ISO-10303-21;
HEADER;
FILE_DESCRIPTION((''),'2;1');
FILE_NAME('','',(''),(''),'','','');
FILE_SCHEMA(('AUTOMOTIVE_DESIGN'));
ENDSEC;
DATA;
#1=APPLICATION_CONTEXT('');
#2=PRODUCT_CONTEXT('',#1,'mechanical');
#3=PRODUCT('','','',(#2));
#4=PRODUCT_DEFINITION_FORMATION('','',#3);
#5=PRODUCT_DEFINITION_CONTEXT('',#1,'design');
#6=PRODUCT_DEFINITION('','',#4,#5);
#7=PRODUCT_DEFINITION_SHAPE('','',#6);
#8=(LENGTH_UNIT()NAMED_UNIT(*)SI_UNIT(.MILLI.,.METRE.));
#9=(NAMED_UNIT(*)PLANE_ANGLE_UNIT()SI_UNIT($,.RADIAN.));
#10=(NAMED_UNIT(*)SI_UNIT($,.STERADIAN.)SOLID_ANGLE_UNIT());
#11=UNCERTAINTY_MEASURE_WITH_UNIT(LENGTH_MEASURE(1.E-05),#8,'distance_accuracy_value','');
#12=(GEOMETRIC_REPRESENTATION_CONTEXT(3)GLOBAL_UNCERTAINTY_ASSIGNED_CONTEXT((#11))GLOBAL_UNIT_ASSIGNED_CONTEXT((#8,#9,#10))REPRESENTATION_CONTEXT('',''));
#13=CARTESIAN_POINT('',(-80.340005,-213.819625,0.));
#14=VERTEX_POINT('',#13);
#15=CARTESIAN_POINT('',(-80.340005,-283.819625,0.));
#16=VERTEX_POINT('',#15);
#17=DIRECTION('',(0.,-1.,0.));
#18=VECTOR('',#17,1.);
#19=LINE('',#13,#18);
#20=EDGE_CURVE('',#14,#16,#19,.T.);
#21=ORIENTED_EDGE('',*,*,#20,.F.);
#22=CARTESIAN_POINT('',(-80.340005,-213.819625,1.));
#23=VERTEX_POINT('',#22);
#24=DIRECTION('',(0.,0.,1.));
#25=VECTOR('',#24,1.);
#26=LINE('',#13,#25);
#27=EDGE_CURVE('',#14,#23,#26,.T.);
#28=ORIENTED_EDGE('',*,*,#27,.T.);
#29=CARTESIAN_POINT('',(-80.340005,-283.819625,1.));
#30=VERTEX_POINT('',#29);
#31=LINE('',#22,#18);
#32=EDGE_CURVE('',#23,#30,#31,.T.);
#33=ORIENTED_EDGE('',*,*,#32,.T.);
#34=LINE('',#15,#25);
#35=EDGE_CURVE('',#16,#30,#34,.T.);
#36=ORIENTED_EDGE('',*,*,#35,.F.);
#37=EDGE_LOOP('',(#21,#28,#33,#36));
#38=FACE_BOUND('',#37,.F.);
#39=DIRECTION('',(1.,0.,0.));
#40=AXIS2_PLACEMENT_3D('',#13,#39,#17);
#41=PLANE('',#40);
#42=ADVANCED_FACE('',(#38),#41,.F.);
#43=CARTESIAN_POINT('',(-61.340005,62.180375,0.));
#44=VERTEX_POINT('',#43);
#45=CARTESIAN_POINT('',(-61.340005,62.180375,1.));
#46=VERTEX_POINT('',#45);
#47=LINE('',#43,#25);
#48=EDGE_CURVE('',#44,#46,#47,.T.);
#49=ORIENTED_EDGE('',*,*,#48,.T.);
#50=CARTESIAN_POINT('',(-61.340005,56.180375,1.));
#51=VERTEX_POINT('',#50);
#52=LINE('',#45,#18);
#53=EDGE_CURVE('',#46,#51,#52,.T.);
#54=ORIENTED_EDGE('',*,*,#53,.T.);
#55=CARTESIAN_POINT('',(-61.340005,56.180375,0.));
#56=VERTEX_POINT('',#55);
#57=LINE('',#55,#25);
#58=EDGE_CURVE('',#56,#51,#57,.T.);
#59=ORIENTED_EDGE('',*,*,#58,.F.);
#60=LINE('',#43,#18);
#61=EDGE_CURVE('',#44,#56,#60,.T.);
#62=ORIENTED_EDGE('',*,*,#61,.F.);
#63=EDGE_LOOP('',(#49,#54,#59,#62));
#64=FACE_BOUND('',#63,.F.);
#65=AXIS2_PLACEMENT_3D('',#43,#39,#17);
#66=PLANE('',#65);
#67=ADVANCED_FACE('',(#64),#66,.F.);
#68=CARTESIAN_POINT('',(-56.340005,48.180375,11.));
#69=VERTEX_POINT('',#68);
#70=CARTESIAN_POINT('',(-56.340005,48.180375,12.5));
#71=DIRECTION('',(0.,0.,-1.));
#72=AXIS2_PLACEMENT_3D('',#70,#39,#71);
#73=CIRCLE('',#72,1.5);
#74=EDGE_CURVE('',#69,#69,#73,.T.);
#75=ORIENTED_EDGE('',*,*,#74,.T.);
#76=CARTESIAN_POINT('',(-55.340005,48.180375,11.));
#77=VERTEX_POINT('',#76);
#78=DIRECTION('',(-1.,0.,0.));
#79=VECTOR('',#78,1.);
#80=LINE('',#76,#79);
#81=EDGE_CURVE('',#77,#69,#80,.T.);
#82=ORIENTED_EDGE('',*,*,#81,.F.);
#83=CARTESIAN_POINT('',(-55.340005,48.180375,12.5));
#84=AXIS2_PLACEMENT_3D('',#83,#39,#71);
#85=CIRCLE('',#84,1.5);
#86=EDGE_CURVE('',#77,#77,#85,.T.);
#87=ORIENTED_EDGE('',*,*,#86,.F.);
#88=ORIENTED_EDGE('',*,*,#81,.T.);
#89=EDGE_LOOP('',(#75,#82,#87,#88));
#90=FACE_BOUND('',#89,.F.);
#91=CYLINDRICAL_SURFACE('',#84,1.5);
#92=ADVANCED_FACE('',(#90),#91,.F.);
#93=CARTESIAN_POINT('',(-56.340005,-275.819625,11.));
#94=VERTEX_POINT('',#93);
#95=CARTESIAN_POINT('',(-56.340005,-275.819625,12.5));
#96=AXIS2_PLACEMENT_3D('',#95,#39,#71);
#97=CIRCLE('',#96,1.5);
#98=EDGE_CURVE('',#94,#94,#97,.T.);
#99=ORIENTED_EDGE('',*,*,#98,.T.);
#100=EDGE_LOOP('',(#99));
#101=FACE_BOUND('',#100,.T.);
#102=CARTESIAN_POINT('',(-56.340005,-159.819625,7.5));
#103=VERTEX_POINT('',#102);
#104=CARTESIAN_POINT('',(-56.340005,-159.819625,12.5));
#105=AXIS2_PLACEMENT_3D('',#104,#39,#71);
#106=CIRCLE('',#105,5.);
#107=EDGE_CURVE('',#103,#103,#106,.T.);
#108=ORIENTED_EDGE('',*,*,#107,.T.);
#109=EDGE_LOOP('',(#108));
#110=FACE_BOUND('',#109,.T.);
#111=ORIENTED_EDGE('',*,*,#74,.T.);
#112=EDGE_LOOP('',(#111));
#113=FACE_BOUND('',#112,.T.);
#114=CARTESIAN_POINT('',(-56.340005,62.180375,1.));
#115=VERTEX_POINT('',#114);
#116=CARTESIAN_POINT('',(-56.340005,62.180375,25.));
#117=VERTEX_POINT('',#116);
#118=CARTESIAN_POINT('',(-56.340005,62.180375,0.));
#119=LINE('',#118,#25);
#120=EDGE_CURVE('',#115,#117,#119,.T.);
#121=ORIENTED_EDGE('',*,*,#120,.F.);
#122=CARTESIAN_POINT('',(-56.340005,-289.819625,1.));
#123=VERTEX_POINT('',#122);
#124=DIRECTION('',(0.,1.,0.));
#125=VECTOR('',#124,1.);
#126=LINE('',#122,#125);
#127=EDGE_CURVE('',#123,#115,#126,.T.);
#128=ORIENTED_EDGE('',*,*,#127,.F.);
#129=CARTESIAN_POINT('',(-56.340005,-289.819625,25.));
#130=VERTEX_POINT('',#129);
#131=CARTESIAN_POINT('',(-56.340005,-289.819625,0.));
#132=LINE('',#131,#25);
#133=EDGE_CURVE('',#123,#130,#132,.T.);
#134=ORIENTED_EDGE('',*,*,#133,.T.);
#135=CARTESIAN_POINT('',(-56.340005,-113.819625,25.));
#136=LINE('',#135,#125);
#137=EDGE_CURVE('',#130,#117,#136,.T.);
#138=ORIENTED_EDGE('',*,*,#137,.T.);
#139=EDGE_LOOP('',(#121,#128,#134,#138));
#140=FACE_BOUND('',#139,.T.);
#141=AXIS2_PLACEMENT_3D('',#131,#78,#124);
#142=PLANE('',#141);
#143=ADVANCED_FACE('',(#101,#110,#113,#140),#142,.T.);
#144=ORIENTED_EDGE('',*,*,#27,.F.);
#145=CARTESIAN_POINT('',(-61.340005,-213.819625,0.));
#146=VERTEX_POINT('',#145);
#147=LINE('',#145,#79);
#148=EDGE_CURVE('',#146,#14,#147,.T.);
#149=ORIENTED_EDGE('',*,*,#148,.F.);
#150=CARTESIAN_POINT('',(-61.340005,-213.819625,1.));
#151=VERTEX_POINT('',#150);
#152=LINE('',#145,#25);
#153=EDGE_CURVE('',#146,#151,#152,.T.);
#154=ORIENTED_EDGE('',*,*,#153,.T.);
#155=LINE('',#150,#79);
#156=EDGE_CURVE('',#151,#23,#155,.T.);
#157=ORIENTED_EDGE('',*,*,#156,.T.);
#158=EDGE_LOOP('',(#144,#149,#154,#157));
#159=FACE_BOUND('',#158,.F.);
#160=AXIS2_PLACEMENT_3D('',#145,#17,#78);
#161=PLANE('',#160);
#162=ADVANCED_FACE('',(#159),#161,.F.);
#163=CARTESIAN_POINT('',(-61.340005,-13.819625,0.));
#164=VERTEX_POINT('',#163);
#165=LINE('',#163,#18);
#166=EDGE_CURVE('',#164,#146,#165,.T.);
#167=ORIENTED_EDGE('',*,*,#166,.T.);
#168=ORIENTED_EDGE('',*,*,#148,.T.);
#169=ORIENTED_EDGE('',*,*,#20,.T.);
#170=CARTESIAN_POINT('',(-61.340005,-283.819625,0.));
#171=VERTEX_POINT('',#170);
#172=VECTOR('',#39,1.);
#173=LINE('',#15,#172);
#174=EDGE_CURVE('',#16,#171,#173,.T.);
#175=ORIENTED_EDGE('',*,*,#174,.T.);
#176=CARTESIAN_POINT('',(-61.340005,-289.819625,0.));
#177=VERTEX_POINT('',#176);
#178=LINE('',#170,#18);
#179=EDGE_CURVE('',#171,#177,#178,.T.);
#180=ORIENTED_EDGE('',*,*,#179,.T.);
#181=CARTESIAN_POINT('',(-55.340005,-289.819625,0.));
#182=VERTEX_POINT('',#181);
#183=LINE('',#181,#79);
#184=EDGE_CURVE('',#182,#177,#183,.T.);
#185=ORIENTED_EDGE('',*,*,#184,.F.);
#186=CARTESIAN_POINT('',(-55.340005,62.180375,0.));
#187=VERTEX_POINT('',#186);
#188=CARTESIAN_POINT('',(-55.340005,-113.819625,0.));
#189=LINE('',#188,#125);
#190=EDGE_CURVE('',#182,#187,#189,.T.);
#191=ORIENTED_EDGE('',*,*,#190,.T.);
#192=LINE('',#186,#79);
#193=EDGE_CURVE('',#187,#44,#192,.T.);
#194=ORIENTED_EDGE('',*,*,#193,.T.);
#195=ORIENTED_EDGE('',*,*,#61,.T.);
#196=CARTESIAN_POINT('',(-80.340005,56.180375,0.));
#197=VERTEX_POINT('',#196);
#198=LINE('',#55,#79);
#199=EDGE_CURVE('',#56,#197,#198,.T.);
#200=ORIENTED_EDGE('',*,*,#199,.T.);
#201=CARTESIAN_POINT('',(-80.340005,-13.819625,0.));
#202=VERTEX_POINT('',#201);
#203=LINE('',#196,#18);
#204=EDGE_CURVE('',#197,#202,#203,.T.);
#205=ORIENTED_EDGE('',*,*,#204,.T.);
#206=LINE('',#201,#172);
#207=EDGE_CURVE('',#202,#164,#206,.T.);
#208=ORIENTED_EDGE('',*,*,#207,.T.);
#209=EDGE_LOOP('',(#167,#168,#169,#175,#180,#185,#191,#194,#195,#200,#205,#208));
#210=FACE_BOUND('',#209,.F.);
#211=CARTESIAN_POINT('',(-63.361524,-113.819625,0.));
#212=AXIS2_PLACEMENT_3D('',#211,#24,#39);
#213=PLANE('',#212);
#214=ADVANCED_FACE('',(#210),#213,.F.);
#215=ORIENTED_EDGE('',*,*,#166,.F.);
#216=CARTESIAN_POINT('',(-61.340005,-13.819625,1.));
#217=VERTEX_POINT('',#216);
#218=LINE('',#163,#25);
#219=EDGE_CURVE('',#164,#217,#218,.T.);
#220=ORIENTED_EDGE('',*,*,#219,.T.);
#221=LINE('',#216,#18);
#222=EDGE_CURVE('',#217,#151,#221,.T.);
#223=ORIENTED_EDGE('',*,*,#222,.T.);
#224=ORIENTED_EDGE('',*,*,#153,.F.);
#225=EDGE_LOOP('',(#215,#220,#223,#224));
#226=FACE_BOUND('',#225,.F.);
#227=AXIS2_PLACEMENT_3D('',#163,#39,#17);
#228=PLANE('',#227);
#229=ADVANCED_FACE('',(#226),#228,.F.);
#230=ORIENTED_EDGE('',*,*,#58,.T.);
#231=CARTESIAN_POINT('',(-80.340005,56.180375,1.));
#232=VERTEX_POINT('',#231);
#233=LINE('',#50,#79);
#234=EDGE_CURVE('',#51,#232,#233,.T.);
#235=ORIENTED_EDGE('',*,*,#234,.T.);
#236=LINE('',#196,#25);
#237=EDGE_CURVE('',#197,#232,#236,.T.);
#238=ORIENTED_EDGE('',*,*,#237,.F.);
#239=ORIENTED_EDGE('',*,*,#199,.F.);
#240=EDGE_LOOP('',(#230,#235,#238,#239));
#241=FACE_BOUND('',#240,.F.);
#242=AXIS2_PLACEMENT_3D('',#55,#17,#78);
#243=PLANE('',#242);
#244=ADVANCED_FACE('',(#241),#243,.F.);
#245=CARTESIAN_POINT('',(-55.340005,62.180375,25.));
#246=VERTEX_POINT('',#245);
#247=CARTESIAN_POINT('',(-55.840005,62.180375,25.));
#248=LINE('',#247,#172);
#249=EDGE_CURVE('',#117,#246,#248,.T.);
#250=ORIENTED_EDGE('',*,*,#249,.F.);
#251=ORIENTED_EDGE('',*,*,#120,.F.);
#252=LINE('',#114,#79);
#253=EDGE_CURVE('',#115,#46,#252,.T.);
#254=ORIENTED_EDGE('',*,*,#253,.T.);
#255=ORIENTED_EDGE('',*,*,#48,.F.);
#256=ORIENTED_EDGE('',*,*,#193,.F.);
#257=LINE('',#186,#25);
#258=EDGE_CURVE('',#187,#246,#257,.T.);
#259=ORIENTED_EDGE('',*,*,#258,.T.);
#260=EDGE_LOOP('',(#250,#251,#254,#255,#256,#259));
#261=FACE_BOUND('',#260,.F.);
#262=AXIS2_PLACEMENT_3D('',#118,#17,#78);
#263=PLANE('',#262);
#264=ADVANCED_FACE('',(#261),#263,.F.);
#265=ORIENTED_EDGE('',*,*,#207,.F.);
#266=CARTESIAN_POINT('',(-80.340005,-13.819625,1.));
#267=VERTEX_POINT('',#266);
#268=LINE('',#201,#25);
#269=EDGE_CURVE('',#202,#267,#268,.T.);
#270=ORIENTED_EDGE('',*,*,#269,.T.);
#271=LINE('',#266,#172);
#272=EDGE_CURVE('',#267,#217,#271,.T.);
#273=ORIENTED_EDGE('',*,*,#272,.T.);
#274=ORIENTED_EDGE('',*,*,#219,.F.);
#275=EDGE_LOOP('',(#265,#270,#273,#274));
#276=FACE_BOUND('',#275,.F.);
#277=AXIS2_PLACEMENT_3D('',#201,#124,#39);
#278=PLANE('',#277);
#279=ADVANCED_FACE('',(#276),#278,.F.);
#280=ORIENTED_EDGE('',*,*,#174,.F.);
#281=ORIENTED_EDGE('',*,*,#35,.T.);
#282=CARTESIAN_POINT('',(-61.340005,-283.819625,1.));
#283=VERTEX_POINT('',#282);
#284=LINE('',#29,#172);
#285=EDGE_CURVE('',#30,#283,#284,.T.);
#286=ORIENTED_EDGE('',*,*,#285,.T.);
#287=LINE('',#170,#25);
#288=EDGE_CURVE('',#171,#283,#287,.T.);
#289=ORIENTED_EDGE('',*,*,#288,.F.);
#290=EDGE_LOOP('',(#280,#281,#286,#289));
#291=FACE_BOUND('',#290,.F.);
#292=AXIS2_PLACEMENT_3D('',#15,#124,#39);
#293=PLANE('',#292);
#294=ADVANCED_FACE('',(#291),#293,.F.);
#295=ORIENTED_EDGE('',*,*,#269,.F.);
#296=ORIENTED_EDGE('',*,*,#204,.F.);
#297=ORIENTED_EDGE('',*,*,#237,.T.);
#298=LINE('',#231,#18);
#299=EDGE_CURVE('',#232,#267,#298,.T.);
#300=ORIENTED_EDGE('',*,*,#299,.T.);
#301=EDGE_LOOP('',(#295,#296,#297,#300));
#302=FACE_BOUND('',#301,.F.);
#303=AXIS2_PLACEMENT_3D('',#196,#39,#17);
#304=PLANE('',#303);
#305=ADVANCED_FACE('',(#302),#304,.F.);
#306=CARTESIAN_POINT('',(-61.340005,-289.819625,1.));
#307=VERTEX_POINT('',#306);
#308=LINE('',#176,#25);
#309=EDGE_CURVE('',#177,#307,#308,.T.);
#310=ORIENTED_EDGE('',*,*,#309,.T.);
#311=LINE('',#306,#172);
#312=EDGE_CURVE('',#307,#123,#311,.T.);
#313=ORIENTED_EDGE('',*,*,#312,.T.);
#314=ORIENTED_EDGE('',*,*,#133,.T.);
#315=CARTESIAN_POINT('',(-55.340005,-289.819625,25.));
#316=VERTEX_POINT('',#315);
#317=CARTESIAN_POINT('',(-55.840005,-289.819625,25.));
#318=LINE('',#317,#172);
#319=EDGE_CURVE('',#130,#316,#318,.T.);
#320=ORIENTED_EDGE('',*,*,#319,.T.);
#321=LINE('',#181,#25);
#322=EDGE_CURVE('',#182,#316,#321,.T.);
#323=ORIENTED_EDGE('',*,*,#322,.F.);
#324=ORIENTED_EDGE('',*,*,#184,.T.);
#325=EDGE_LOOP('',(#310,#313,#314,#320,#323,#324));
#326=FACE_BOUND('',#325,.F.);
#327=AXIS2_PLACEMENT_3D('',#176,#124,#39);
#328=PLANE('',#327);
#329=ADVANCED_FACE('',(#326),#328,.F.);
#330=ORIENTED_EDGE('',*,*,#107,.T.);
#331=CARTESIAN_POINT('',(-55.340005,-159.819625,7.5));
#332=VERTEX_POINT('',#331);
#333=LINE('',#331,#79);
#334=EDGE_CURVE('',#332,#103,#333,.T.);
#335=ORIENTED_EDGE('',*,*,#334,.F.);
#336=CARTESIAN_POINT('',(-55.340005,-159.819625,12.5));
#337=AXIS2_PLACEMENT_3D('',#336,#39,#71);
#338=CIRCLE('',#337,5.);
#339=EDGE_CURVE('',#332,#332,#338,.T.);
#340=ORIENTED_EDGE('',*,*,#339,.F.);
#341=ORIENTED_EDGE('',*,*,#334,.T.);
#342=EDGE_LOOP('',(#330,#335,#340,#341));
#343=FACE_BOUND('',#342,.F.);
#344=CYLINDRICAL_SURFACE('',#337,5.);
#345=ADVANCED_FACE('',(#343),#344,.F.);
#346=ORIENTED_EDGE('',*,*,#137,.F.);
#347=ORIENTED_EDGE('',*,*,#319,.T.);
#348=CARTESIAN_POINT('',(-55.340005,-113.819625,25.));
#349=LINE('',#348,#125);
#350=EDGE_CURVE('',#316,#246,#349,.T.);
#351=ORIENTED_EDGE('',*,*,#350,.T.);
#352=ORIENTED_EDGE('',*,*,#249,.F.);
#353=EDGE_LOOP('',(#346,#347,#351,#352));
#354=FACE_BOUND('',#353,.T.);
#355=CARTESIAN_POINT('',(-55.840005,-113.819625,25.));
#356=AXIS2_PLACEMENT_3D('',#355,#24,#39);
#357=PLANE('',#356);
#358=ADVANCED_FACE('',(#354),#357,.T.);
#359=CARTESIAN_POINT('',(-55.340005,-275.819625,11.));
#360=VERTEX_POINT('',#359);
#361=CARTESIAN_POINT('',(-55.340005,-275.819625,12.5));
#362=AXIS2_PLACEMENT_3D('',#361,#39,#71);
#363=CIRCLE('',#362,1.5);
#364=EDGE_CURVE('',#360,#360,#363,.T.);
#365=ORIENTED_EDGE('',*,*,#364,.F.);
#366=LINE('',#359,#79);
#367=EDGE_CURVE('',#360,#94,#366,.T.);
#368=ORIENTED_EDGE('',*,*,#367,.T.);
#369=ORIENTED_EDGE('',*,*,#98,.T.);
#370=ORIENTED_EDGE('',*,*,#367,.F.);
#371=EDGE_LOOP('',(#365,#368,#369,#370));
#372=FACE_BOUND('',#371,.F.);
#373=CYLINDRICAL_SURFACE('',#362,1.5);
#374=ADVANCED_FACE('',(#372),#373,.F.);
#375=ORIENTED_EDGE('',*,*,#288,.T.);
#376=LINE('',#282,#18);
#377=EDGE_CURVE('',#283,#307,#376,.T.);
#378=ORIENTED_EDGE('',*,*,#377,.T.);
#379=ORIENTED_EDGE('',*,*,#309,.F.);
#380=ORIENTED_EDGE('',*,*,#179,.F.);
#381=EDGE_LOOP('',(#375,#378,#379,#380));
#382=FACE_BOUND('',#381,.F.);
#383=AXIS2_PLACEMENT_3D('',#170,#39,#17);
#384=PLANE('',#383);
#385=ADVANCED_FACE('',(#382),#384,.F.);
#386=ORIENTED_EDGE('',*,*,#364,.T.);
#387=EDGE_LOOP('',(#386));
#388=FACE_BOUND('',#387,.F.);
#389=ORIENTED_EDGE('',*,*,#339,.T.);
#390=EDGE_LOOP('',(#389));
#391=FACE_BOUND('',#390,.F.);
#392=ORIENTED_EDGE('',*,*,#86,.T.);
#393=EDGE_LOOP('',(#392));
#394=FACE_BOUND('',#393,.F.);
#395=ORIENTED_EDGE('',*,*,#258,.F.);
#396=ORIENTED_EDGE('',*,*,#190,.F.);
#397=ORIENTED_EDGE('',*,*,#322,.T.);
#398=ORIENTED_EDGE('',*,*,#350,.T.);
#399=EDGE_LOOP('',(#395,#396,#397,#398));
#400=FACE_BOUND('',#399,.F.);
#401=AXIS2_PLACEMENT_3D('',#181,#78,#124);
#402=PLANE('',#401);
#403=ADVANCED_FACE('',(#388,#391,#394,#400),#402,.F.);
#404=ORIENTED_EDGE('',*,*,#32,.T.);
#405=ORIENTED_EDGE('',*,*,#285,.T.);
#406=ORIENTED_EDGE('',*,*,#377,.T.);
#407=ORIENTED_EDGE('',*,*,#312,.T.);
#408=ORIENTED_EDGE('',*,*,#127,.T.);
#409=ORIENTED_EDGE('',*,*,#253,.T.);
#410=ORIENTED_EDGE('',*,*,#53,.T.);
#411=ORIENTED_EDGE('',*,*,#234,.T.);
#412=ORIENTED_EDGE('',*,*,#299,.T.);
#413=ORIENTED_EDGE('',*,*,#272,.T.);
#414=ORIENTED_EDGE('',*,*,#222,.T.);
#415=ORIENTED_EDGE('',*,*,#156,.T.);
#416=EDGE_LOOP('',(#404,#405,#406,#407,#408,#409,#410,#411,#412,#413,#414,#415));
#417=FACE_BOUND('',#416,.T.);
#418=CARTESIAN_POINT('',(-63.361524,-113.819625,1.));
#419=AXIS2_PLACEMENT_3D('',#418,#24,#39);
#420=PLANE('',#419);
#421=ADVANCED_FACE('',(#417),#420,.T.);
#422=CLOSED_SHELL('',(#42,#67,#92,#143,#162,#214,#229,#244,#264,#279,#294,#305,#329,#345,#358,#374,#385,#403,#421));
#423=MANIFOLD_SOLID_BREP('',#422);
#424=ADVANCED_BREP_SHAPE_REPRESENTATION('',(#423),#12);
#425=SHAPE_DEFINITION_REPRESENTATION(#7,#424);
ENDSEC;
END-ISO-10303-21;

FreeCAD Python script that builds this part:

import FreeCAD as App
import Part
import Sketcher
from FreeCAD import Vector


def add_polygon(sketch, points):
    """Adds a closed chain of lines whose ends are joined by coincident constraints."""
    first, n = sketch.GeometryCount, len(points)
    for a, b in zip(points, points[1:] + points[:1]):
        sketch.addGeometry(Part.LineSegment(App.Vector(*a, 0), App.Vector(*b, 0)), False)
    for i in range(n):
        sketch.addConstraint(Sketcher.Constraint("Coincident", first + i, 2, first + (i + 1) % n, 1))

doc = App.newDocument("Part")
body = doc.addObject("PartDesign::Body", "Body")

# Sketch on XY plane
sketch1 = doc.addObject("Sketcher::SketchObject", "Sketch")
body.addObject(sketch1)
sketch1.AttachmentSupport = (doc.XY_Plane, [""])
sketch1.MapMode = "FlatFace"
add_polygon(sketch1, [(-56.3, 62.2), (-56.3, -289.8), (-55.3, -289.8), (-55.3, 62.2)])  # lines 0-3
sketch1.addConstraint([
    Sketcher.Constraint("Vertical", 0),
    Sketcher.Constraint("Horizontal", 1),
    Sketcher.Constraint("Vertical", 2),
    Sketcher.Constraint("Horizontal", 3),
    Sketcher.Constraint("DistanceX", 1, 1, 1, 2, 1.0),
    Sketcher.Constraint("DistanceY", 0, 2, 0, 1, 352.0),
    Sketcher.Constraint("DistanceX", 0, 2, -1, 1, 56.340005),
    Sketcher.Constraint("DistanceY", 0, 2, -1, 1, 289.819625),
])
pad1 = doc.addObject("PartDesign::Pad", "Pad")
body.addObject(pad1)
pad1.Profile = sketch1
pad1.Length = 25

# Sketch on YZ plane
sketch2 = doc.addObject("Sketcher::SketchObject", "Sketch001")
body.addObject(sketch2)
sketch2.AttachmentSupport = (doc.YZ_Plane, [""])
sketch2.MapMode = "FlatFace"
sketch2.AttachmentOffset = App.Placement(Vector(0, 0, -55.340005), App.Rotation())
sketch2.addGeometry([
    Part.Circle(Vector(48.2, 12.5, 0), Vector(0, 0, 1), 1.5),
    Part.Circle(Vector(-275.8, 12.5, 0), Vector(0, 0, 1), 1.5),
    Part.Circle(Vector(-159.8, 12.5, 0), Vector(0, 0, 1), 5),
], False)
sketch2.addConstraint([
    Sketcher.Constraint("Equal", 0, 1),
    Sketcher.Constraint("Horizontal", 0, 3, 1, 3),
    Sketcher.Constraint("Horizontal", 1, 3, 2, 3),
    Sketcher.Constraint("Diameter", 0, 3.0),
    Sketcher.Constraint("Diameter", 2, 10.0),
    Sketcher.Constraint("DistanceX", 1, 3, 0, 3, 324.0),
    Sketcher.Constraint("DistanceX", 1, 3, 2, 3, 116.0),
    Sketcher.Constraint("DistanceY", -1, 1, 0, 3, 12.5),
    Sketcher.Constraint("DistanceX", -1, 1, 0, 3, 48.180375),
])
pocket1 = doc.addObject("PartDesign::Pocket", "Pocket")
body.addObject(pocket1)
pocket1.Profile = sketch2
pocket1.Length = 1

# Sketch on XY plane
sketch3 = doc.addObject("Sketcher::SketchObject", "Sketch002")
body.addObject(sketch3)
sketch3.AttachmentSupport = (doc.XY_Plane, [""])
sketch3.MapMode = "FlatFace"
add_polygon(sketch3, [(-56, 62), (-61, 62), (-61, 56), (-80, 56), (-80, -14), (-61, -14), (-61, -214), (-80, -214), (-80, -284), (-61, -284), (-61, -290), (-56, -290)])  # lines 0-11
sketch3.addConstraint([
    Sketcher.Constraint("Horizontal", 0),
    Sketcher.Constraint("Vertical", 1),
    Sketcher.Constraint("Horizontal", 2),
    Sketcher.Constraint("Vertical", 3),
    Sketcher.Constraint("Horizontal", 4),
    Sketcher.Constraint("Vertical", 5),
    Sketcher.Constraint("Horizontal", 6),
    Sketcher.Constraint("Vertical", 7),
    Sketcher.Constraint("Horizontal", 8),
    Sketcher.Constraint("Vertical", 9),
    Sketcher.Constraint("Horizontal", 10),
    Sketcher.Constraint("Vertical", 11),
    Sketcher.Constraint("Vertical", 1, 2, 4, 2),
    Sketcher.Constraint("Vertical", 3, 2, 6, 2),
    Sketcher.Constraint("Vertical", 5, 2, 8, 2),
    Sketcher.Constraint("Equal", 3, 7),
    Sketcher.Constraint("Equal", 1, 9),
    Sketcher.Constraint("DistanceX", 0, 2, 0, 1, 5.0),
    Sketcher.Constraint("DistanceX", 2, 2, 2, 1, 19.0),
    Sketcher.Constraint("DistanceY", 1, 2, 1, 1, 6.0),
    Sketcher.Constraint("DistanceY", 3, 2, 3, 1, 70.0),
    Sketcher.Constraint("DistanceY", 5, 2, 5, 1, 200.0),
    Sketcher.Constraint("DistanceX", 0, 2, -1, 1, 61.340005),
    Sketcher.Constraint("DistanceY", -1, 1, 0, 2, 62.180375),
])
pad2 = doc.addObject("PartDesign::Pad", "Pad001")
body.addObject(pad2)
pad2.Profile = sketch3
pad2.Length = 1

doc.recompute()
